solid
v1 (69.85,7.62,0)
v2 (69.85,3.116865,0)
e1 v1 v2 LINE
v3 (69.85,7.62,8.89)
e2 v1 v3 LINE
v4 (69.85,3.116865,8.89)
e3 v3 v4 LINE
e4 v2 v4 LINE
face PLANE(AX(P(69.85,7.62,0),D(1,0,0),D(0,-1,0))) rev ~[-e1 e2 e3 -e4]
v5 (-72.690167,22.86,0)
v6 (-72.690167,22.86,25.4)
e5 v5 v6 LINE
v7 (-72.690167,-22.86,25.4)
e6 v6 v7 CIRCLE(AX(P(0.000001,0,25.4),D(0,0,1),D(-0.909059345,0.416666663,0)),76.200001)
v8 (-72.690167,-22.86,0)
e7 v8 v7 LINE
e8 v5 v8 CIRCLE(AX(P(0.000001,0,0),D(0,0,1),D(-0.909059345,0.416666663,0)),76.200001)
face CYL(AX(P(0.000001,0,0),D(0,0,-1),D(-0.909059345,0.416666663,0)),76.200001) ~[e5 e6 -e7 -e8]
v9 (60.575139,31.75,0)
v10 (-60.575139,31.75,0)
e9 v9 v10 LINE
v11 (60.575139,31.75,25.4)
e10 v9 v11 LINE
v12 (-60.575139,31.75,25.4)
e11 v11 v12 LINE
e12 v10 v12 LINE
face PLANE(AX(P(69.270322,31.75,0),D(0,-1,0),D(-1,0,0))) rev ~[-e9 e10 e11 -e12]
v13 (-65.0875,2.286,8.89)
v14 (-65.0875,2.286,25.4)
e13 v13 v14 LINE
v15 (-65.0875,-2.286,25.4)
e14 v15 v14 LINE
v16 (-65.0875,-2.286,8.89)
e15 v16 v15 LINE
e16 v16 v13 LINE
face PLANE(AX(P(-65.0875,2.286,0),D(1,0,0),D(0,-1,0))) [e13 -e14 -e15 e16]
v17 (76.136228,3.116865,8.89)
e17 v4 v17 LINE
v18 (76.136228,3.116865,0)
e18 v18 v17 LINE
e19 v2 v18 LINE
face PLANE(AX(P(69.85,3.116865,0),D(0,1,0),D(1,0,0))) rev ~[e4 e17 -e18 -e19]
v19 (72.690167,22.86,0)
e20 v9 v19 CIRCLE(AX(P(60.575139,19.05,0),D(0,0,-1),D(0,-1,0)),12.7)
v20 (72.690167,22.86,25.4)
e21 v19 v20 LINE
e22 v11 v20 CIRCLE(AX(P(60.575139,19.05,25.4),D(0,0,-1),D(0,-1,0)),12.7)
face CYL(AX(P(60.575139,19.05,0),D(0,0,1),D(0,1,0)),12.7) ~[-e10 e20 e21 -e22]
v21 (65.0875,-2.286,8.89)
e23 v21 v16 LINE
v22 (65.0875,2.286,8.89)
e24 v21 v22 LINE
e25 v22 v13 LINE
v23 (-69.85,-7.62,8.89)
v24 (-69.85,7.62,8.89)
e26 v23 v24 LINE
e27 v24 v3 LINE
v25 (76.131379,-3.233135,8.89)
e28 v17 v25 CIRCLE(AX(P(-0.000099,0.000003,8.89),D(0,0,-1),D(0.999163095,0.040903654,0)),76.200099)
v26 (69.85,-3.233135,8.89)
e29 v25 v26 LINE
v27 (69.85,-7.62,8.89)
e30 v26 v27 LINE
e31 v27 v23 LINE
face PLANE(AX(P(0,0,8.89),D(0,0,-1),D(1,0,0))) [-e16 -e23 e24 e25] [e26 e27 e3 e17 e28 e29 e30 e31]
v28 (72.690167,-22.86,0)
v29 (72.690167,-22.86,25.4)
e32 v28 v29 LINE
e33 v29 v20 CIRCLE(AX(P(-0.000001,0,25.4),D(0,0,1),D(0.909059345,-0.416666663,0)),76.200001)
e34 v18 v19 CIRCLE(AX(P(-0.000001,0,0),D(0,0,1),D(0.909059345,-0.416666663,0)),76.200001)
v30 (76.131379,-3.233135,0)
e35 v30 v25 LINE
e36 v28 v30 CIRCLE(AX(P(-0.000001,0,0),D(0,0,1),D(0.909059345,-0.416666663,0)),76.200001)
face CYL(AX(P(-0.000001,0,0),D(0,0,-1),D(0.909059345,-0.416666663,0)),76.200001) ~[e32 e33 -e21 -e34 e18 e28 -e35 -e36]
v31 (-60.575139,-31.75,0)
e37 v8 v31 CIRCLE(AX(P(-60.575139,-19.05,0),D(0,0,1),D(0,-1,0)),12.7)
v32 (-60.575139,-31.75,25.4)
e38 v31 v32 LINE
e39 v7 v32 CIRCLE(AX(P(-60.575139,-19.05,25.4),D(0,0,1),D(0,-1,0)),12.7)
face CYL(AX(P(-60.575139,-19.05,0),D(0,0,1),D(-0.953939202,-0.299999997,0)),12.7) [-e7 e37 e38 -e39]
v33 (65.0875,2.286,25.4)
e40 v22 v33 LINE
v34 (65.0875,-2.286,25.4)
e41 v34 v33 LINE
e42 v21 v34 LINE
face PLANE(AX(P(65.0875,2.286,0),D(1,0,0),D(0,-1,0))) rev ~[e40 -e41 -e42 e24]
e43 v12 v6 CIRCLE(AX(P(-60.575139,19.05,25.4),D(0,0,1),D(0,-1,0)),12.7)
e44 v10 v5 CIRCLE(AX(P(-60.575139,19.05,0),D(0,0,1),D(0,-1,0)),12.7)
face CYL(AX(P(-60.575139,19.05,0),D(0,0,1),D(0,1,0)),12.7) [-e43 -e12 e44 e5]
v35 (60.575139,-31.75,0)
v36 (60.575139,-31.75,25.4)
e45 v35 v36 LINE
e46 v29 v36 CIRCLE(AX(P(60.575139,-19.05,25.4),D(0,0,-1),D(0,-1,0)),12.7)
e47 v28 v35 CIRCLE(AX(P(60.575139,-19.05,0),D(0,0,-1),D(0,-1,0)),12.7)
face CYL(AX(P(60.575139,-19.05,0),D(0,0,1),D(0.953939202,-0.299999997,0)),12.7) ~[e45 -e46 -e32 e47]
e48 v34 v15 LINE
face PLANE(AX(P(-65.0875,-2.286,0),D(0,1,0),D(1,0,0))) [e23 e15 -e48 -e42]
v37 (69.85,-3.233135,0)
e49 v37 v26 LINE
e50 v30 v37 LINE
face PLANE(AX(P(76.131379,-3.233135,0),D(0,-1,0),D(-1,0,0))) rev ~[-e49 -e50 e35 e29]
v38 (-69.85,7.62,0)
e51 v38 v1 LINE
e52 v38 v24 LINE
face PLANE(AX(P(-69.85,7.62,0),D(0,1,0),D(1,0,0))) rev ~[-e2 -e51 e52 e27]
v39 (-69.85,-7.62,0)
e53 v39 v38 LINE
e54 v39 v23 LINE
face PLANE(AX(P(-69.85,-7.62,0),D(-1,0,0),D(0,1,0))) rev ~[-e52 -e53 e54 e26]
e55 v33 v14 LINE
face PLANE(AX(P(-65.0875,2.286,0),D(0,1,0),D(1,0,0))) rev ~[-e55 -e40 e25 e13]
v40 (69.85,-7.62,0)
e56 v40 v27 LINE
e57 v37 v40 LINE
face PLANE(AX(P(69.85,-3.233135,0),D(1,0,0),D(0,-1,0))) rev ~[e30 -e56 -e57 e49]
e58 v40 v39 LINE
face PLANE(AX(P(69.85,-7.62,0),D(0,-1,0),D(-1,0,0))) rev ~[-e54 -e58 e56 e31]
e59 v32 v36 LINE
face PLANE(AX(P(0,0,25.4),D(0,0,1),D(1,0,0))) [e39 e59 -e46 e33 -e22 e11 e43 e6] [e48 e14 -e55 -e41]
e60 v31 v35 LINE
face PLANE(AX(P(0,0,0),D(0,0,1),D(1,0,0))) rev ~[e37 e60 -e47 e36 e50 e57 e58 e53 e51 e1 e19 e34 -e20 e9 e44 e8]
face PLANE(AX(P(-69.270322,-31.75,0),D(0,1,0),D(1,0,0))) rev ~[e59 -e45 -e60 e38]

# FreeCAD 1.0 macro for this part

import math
import FreeCAD as App
import Part
import Sketcher
Q = App.Units.Quantity


def edges_at(feature, points):
    """Names of the edges that pass closest to the given points."""
    edges = feature.Shape.Edges
    near = lambda p: min(range(len(edges)), key=lambda i: edges[i].distToShape(Part.Vertex(*p))[0])
    return sorted({f"Edge{near(p) + 1}" for p in points})

doc = App.newDocument("Part")
params = doc.addObject("Spreadsheet::Sheet", "Params")
for row, (alias, value) in enumerate([
    ("sketch1_radius", "3 in"),
    ("pad1_length", "1 in"),
    ("sketch2_height", "0.18 in"),
    ("sketch2_width", "5.125 in"),
    ("sketch3_width", "5.5 in"),
    ("sketch3_height", "0.6 in"),
    ("pocket2_length", "0.35 in"),
    ("fillet_radius", "0.5 in"),
], start=1):
    params.set(f"A{row}", alias)
    params.set(f"B{row}", "=" + value)
    params.setAlias(f"B{row}", alias)

body = doc.addObject("PartDesign::Body", "Body")

sketch1 = doc.addObject("Sketcher::SketchObject", "Sketch")
body.addObject(sketch1)
sketch1.AttachmentSupport = (doc.XY_Plane, [""])
sketch1.MapMode = "FlatFace"
sketch1.addGeometry([
    Part.LineSegment(App.Vector(69, 32, 0), App.Vector(-69, 32, 0)),
    Part.ArcOfCircle(Part.Circle(App.Vector(0, 0, 0), App.Vector(0, 0, 1), 76), math.radians(155), math.radians(205)),
    Part.LineSegment(App.Vector(-69, -32, 0), App.Vector(69, -32, 0)),
    Part.ArcOfCircle(Part.Circle(App.Vector(0, 0, 0), App.Vector(0, 0, 1), 76), math.radians(-25), math.radians(25)),
], False)
sketch1.addConstraint([
    Sketcher.Constraint("Coincident", 0, 2, 1, 1),
    Sketcher.Constraint("Coincident", 1, 2, 2, 1),
    Sketcher.Constraint("Coincident", 2, 2, 3, 1),
    Sketcher.Constraint("Coincident", 3, 2, 0, 1),
    Sketcher.Constraint("Horizontal", 0),
    Sketcher.Constraint("Horizontal", 2),
    Sketcher.Constraint("Coincident", 1, 3, -1, 1),
    Sketcher.Constraint("Coincident", 3, 3, -1, 1),
    Sketcher.Constraint("Equal", 1, 3),
    Sketcher.Constraint("Vertical", 0, 2, 1, 2),
    Sketcher.Constraint("Radius", 1, Q("3 in")),
    Sketcher.Constraint("DistanceY", 1, 2, 0, 2, Q("2.5 in")),
])
sketch1.setExpression("Constraints[10]", "Params.sketch1_radius")
pad1 = doc.addObject("PartDesign::Pad", "Pad")
body.addObject(pad1)
pad1.Profile = sketch1
pad1.setExpression("Length", "Params.pad1_length")

sketch2 = doc.addObject("Sketcher::SketchObject", "Sketch001")
body.addObject(sketch2)
sketch2.AttachmentSupport = (doc.XY_Plane, [""])
sketch2.MapMode = "FlatFace"
sketch2.addGeometry([
    Part.LineSegment(App.Vector(-65.1, -2.3, 0), App.Vector(-65.1, 2.3, 0)),
    Part.LineSegment(App.Vector(-65.1, 2.3, 0), App.Vector(65.1, 2.3, 0)),
    Part.LineSegment(App.Vector(65.1, 2.3, 0), App.Vector(65.1, -2.3, 0)),
    Part.LineSegment(App.Vector(65.1, -2.3, 0), App.Vector(-65.1, -2.3, 0)),
], False)
sketch2.addConstraint([
    Sketcher.Constraint("Coincident", 0, 2, 1, 1),
    Sketcher.Constraint("Coincident", 1, 2, 2, 1),
    Sketcher.Constraint("Coincident", 2, 2, 3, 1),
    Sketcher.Constraint("Coincident", 3, 2, 0, 1),
    Sketcher.Constraint("Vertical", 0),
    Sketcher.Constraint("Horizontal", 1),
    Sketcher.Constraint("Vertical", 2),
    Sketcher.Constraint("Horizontal", 3),
    Sketcher.Constraint("Symmetric", 0, 2, 2, 2, -1, 1),
    Sketcher.Constraint("DistanceY", 0, 1, 0, 2, Q("0.18 in")),
    Sketcher.Constraint("DistanceX", 1, 1, 1, 2, Q("5.125 in")),
])
sketch2.setExpression("Constraints[9]", "Params.sketch2_height")
sketch2.setExpression("Constraints[10]", "Params.sketch2_width")
pocket1 = doc.addObject("PartDesign::Pocket", "Pocket")
body.addObject(pocket1)
pocket1.Profile = sketch2
pocket1.Type = "ThroughAll"
pocket1.Reversed = True

sketch3 = doc.addObject("Sketcher::SketchObject", "Sketch002")
body.addObject(sketch3)
sketch3.AttachmentSupport = (doc.XY_Plane, [""])
sketch3.MapMode = "FlatFace"
sketch3.addGeometry([
    Part.LineSegment(App.Vector(69.8, -7.6, 0), App.Vector(-69.8, -7.6, 0)),
    Part.LineSegment(App.Vector(-69.8, -7.6, 0), App.Vector(-69.8, 7.6, 0)),
    Part.LineSegment(App.Vector(-69.8, 7.6, 0), App.Vector(69.8, 7.6, 0)),
    Part.LineSegment(App.Vector(69.8, 7.6, 0), App.Vector(69.8, 3.1, 0)),
    Part.LineSegment(App.Vector(69.8, 3.1, 0), App.Vector(76.1, 3.1, 0)),
    Part.ArcOfCircle(Part.Circle(App.Vector(0, 0, 0), App.Vector(0, 0, 1), 76.2), math.radians(-2.43), math.radians(2.34)),
    Part.LineSegment(App.Vector(76.1, -3.2, 0), App.Vector(69.8, -3.2, 0)),
    Part.LineSegment(App.Vector(69.8, -3.2, 0), App.Vector(69.8, -7.6, 0)),
], False)
sketch3.addConstraint([
    Sketcher.Constraint("Coincident", 0, 2, 1, 1),
    Sketcher.Constraint("Coincident", 1, 2, 2, 1),
    Sketcher.Constraint("Coincident", 2, 2, 3, 1),
    Sketcher.Constraint("Coincident", 3, 2, 4, 1),
    Sketcher.Constraint("Coincident", 4, 2, 5, 2),
    Sketcher.Constraint("Coincident", 5, 1, 6, 1),
    Sketcher.Constraint("Coincident", 6, 2, 7, 1),
    Sketcher.Constraint("Coincident", 7, 2, 0, 1),
    Sketcher.Constraint("Horizontal", 0),
    Sketcher.Constraint("Vertical", 1),
    Sketcher.Constraint("Horizontal", 2),
    Sketcher.Constraint("Vertical", 3),
    Sketcher.Constraint("Horizontal", 4),
    Sketcher.Constraint("Horizontal", 6),
    Sketcher.Constraint("Vertical", 7),
    Sketcher.Constraint("Symmetric", 0, 2, 2, 2, -1, 1),
    Sketcher.Constraint("Vertical", 3, 2, 6, 2),
    Sketcher.Constraint("DistanceX", 0, 2, 0, 1, Q("5.5 in")),
    Sketcher.Constraint("DistanceY", 1, 1, 1, 2, Q("0.6 in")),
    Sketcher.Constraint("DistanceY", 0, 2, 5, 3, Q("0.3000001 in")),
    Sketcher.Constraint("Radius", 5, Q("76.200099 mm")),
    Sketcher.Constraint("DistanceY", 5, 1, 4, 2, Q("0.25 in")),
    Sketcher.Constraint("DistanceX", 4, 1, 4, 2, Q("6.286228 mm")),
    Sketcher.Constraint("DistanceX", 6, 2, 6, 1, Q("6.281379 mm")),
])
sketch3.setExpression("Constraints[17]", "Params.sketch3_width")
sketch3.setExpression("Constraints[18]", "Params.sketch3_height")
pocket2 = doc.addObject("PartDesign::Pocket", "Pocket001")
body.addObject(pocket2)
pocket2.Profile = sketch3
pocket2.setExpression("Length", "Params.pocket2_length")
pocket2.Reversed = True
doc.recompute()

fillet = doc.addObject("PartDesign::Fillet", "Fillet")
body.addObject(fillet)
fillet.Base = (pocket2, edges_at(pocket2, [
    (69.27, -31.75, 12.7),
    (69.27, 31.75, 12.7),
    (-69.27, -31.75, 12.7),
    (-69.27, 31.75, 12.7),
]))
fillet.setExpression("Radius", "Params.fillet_radius")

doc.recompute()
